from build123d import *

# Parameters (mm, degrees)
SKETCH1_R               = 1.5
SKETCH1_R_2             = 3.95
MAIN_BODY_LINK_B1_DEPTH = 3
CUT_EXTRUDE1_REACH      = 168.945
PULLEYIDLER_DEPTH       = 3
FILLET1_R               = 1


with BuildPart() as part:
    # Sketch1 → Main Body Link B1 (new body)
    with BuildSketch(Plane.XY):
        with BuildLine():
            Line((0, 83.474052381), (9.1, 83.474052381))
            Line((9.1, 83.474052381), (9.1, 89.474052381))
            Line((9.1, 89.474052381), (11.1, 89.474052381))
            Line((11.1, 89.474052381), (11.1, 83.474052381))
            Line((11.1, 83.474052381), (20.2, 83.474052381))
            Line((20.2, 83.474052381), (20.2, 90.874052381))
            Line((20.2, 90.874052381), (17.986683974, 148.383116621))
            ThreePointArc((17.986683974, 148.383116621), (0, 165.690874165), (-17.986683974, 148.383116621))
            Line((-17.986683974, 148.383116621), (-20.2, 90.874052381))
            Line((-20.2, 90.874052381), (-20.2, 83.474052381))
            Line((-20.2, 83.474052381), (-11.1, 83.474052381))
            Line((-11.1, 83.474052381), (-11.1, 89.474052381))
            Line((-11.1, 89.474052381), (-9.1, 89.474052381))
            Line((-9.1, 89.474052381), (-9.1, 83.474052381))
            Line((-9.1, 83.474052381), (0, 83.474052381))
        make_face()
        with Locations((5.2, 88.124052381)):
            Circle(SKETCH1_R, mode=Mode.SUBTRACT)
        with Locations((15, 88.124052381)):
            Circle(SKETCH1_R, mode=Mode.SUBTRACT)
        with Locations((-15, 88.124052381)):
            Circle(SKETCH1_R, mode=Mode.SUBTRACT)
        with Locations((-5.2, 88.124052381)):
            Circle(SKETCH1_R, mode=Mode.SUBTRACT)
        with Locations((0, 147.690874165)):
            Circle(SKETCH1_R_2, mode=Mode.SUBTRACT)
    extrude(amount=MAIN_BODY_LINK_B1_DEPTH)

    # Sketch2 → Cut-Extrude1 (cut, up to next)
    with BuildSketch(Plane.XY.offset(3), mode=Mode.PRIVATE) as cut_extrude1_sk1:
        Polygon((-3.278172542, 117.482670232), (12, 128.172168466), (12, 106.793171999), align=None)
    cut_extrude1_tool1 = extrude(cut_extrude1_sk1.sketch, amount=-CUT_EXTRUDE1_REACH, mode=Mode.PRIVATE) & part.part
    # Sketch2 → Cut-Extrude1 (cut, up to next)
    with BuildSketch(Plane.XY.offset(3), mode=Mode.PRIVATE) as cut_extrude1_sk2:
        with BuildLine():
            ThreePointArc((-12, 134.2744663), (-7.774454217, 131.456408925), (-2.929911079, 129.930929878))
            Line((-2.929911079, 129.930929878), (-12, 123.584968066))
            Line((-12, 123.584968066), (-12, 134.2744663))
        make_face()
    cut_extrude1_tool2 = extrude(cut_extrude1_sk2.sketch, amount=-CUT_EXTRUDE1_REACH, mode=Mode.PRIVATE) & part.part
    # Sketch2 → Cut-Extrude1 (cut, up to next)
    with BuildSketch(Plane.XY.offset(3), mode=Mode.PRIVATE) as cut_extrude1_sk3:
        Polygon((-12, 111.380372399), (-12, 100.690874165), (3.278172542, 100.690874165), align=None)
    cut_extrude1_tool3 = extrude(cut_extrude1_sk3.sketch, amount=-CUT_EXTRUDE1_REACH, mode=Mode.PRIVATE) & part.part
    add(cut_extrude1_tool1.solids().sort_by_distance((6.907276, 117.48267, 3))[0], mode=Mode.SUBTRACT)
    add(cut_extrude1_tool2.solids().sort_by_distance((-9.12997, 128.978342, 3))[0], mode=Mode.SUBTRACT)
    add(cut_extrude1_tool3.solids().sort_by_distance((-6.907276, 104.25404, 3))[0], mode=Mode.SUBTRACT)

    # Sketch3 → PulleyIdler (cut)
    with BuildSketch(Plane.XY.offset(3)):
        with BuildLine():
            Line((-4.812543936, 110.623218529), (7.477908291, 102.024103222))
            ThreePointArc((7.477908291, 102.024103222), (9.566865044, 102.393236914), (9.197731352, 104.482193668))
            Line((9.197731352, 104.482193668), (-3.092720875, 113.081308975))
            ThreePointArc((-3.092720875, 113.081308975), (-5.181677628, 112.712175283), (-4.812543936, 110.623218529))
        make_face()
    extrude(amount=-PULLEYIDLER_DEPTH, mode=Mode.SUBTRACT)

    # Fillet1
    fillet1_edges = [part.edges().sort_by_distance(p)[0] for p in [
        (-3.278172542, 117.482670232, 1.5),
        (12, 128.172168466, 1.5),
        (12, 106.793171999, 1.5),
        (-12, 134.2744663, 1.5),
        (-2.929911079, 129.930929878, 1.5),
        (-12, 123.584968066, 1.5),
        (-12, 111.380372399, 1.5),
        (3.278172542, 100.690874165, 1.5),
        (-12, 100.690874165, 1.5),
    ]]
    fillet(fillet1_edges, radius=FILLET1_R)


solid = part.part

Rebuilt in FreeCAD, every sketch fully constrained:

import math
import FreeCAD as App
import Part
import Sketcher
Q = App.Units.Quantity


def edges_at(feature, points):
    """Names of the edges that pass closest to the given points."""
    edges = feature.Shape.Edges
    near = lambda p: min(range(len(edges)), key=lambda i: edges[i].distToShape(Part.Vertex(*p))[0])
    return sorted({f"Edge{near(p) + 1}" for p in points})


def add_polygon(sketch, points):
    """Adds a closed chain of lines whose ends are joined by coincident constraints."""
    first, n = sketch.GeometryCount, len(points)
    for a, b in zip(points, points[1:] + points[:1]):
        sketch.addGeometry(Part.LineSegment(App.Vector(*a, 0), App.Vector(*b, 0)), False)
    for i in range(n):
        sketch.addConstraint(Sketcher.Constraint("Coincident", first + i, 2, first + (i + 1) % n, 1))

doc = App.newDocument("Part")
params = doc.addObject("Spreadsheet::Sheet", "Params")
for row, (alias, value) in enumerate([
    ("sketch1_diameter", "3 mm"),
    ("sketch1_radius", "18 mm"),
    ("sketch1_diameter2", "7.9 mm"),
    ("sketch1_width", "2 mm"),
    ("sketch1_height", "6 mm"),
    ("pad1_length", "3 mm"),
    ("sketch3_radius", "18 mm"),
    ("sketch5_radius", "1.5 mm"),
    ("sketch5_length", "15 mm"),
    ("pocket4_length", "3 mm"),
    ("fillet_radius", "1 mm"),
], start=1):
    params.set(f"A{row}", alias)
    params.set(f"B{row}", "=" + value)
    params.setAlias(f"B{row}", alias)

body = doc.addObject("PartDesign::Body", "Body")

sketch1 = body.newObject("Sketcher::SketchObject", "Sketch")
sketch1.AttachmentSupport = (doc.getObject("XY_Plane"), [""])
sketch1.MapMode = "FlatFace"
sketch1.addGeometry([
    Part.LineSegment(App.Vector(9.1, 83.5, 0), App.Vector(9.1, 89.5, 0)),
    Part.LineSegment(App.Vector(9.1, 89.5, 0), App.Vector(11.1, 89.5, 0)),
    Part.LineSegment(App.Vector(11.1, 89.5, 0), App.Vector(11.1, 83.5, 0)),
    Part.LineSegment(App.Vector(11.1, 83.5, 0), App.Vector(20.2, 83.5, 0)),
    Part.LineSegment(App.Vector(20.2, 83.5, 0), App.Vector(20.2, 90.9, 0)),
    Part.LineSegment(App.Vector(20.2, 90.9, 0), App.Vector(18, 148.4, 0)),
    Part.ArcOfCircle(Part.Circle(App.Vector(0, 147.7, 0), App.Vector(0, 0, 1), 18), math.radians(2), math.radians(178)),
    Part.LineSegment(App.Vector(-18, 148.4, 0), App.Vector(-20.2, 90.9, 0)),
    Part.LineSegment(App.Vector(-20.2, 90.9, 0), App.Vector(-20.2, 83.5, 0)),
    Part.LineSegment(App.Vector(-20.2, 83.5, 0), App.Vector(-11.1, 83.5, 0)),
    Part.LineSegment(App.Vector(-11.1, 83.5, 0), App.Vector(-11.1, 89.5, 0)),
    Part.LineSegment(App.Vector(-11.1, 89.5, 0), App.Vector(-9.1, 89.5, 0)),
    Part.LineSegment(App.Vector(-9.1, 89.5, 0), App.Vector(-9.1, 83.5, 0)),
    Part.LineSegment(App.Vector(-9.1, 83.5, 0), App.Vector(9.1, 83.5, 0)),
    Part.Circle(App.Vector(-15, 88.1, 0), App.Vector(0, 0, 1), 1.5),
    Part.Circle(App.Vector(-5.2, 88.1, 0), App.Vector(0, 0, 1), 1.5),
    Part.Circle(App.Vector(5.2, 88.1, 0), App.Vector(0, 0, 1), 1.5),
    Part.Circle(App.Vector(15, 88.1, 0), App.Vector(0, 0, 1), 1.5),
    Part.Circle(App.Vector(0, 147.7, 0), App.Vector(0, 0, 1), 4),
], False)
sketch1.addConstraint([
    Sketcher.Constraint("Coincident", 0, 2, 1, 1),
    Sketcher.Constraint("Coincident", 1, 2, 2, 1),
    Sketcher.Constraint("Coincident", 2, 2, 3, 1),
    Sketcher.Constraint("Coincident", 3, 2, 4, 1),
    Sketcher.Constraint("Coincident", 4, 2, 5, 1),
    Sketcher.Constraint("Tangent", 5, 2, 6, 1),
    Sketcher.Constraint("Tangent", 6, 2, 7, 1),
    Sketcher.Constraint("Coincident", 7, 2, 8, 1),
    Sketcher.Constraint("Coincident", 8, 2, 9, 1),
    Sketcher.Constraint("Coincident", 9, 2, 10, 1),
    Sketcher.Constraint("Coincident", 10, 2, 11, 1),
    Sketcher.Constraint("Coincident", 11, 2, 12, 1),
    Sketcher.Constraint("Coincident", 12, 2, 13, 1),
    Sketcher.Constraint("Coincident", 13, 2, 0, 1),
    Sketcher.Constraint("Vertical", 0),
    Sketcher.Constraint("Horizontal", 1),
    Sketcher.Constraint("Vertical", 2),
    Sketcher.Constraint("Horizontal", 3),
    Sketcher.Constraint("Vertical", 4),
    Sketcher.Constraint("Vertical", 8),
    Sketcher.Constraint("Horizontal", 9),
    Sketcher.Constraint("Vertical", 10),
    Sketcher.Constraint("Horizontal", 11),
    Sketcher.Constraint("Vertical", 12),
    Sketcher.Constraint("Horizontal", 13),
    Sketcher.Constraint("Coincident", 18, 3, 6, 3),
    Sketcher.Constraint("Equal", 14, 15),
    Sketcher.Constraint("Equal", 15, 16),
    Sketcher.Constraint("Equal", 16, 17),
    Sketcher.Constraint("Symmetric", 15, 3, 16, 3, -2),
    Sketcher.Constraint("Symmetric", 14, 3, 17, 3, -2),
    Sketcher.Constraint("Symmetric", 5, 2, 6, 2, -2),
    Sketcher.Constraint("Symmetric", 3, 2, 8, 2, -2),
    Sketcher.Constraint("Symmetric", 1, 2, 10, 2, -2),
    Sketcher.Constraint("Horizontal", 14, 3, 15, 3),
    Sketcher.Constraint("Horizontal", 9, 2, 12, 2),
    Sketcher.Constraint("Equal", 1, 11),
    Sketcher.Constraint("Diameter", 14, Q("3 mm")),
    Sketcher.Constraint("Radius", 6, Q("18 mm")),
    Sketcher.Constraint("Diameter", 18, Q("7.9 mm")),
    Sketcher.Constraint("DistanceX", 1, 1, 1, 2, Q("2 mm")),
    Sketcher.Constraint("DistanceY", 0, 1, 0, 2, Q("6 mm")),
    Sketcher.Constraint("DistanceX", 3, 1, 3, 2, Q("9.1 mm")),
    Sketcher.Constraint("DistanceX", 13, 1, 13, 2, Q("18.2 mm")),
    Sketcher.Constraint("DistanceY", 4, 1, 4, 2, Q("7.4 mm")),
    Sketcher.Constraint("DistanceX", 14, 3, -1, 1, Q("15 mm")),
    Sketcher.Constraint("DistanceX", 16, 3, 3, 2, Q("15 mm")),
    Sketcher.Constraint("DistanceY", 16, 3, 0, 2, Q("1.35 mm")),
    Sketcher.Constraint("Distance", 5, Q("57.55164 mm")),
    Sketcher.Constraint("DistanceY", -1, 1, 6, 3, Q("147.690874 mm")),
])
sketch1.setExpression("Constraints[37]", "Params.sketch1_diameter")
sketch1.setExpression("Constraints[38]", "Params.sketch1_radius")
sketch1.setExpression("Constraints[39]", "Params.sketch1_diameter2")
sketch1.setExpression("Constraints[40]", "Params.sketch1_width")
sketch1.setExpression("Constraints[41]", "Params.sketch1_height")
pad1 = body.newObject("PartDesign::Pad", "Pad")
pad1.Profile = sketch1
pad1.setExpression("Length", "Params.pad1_length")

sketch2 = body.newObject("Sketcher::SketchObject", "Sketch001")
sketch2.AttachmentSupport = (doc.getObject("XY_Plane"), [""])
sketch2.MapMode = "FlatFace"
sketch2.AttachmentOffset = App.Placement(App.Vector(0, 0, 3), App.Rotation())
add_polygon(sketch2, [(12, 128), (-3, 117), (12, 107)])
sketch2.addConstraint([
    Sketcher.Constraint("Vertical", 2),
    Sketcher.Constraint("Equal", 0, 1),
    Sketcher.Constraint("DistanceX", -1, 1, 1, 2, Q("12 mm")),
    Sketcher.Constraint("DistanceY", 1, 2, 0, 2, Q("10.689498 mm")),
    Sketcher.Constraint("Distance", 0, Q("18.646392 mm")),
    Sketcher.Constraint("DistanceY", -1, 1, 0, 2, Q("117.48267 mm")),
])
pocket1 = body.newObject("PartDesign::Pocket", "Pocket")
pocket1.Profile = sketch2
pocket1.Type = "UpToFirst"

sketch3 = body.newObject("Sketcher::SketchObject", "Sketch002")
sketch3.AttachmentSupport = (doc.getObject("XY_Plane"), [""])
sketch3.MapMode = "FlatFace"
sketch3.AttachmentOffset = App.Placement(App.Vector(0, 0, 3), App.Rotation())
sketch3.addGeometry([
    Part.ArcOfCircle(Part.Circle(App.Vector(0, 148, 0), App.Vector(0, 0, 1), 18), math.radians(-132), math.radians(-99)),
    Part.LineSegment(App.Vector(-12, 134, 0), App.Vector(-12, 124, 0)),
    Part.LineSegment(App.Vector(-12, 124, 0), App.Vector(-3, 130, 0)),
], False)
sketch3.addConstraint([
    Sketcher.Constraint("Coincident", 0, 1, 1, 1),
    Sketcher.Constraint("Coincident", 1, 2, 2, 1),
    Sketcher.Constraint("Coincident", 2, 2, 0, 2),
    Sketcher.Constraint("Vertical", 1),
    Sketcher.Constraint("PointOnObject", 0, 3, -2),
    Sketcher.Constraint("Radius", 0, Q("18 mm")),
    Sketcher.Constraint("DistanceX", 0, 1, -1, 1, Q("12 mm")),
    Sketcher.Constraint("DistanceY", 1, 2, 1, 1, Q("10.689498 mm")),
    Sketcher.Constraint("DistanceY", -1, 1, 1, 2, Q("123.584968 mm")),
    Sketcher.Constraint("DistanceX", 2, 2, -1, 1, Q("2.929911 mm")),
])
sketch3.setExpression("Constraints[5]", "Params.sketch3_radius")
pocket2 = body.newObject("PartDesign::Pocket", "Pocket001")
pocket2.Profile = sketch3
pocket2.Type = "UpToFirst"

sketch4 = body.newObject("Sketcher::SketchObject", "Sketch003")
sketch4.AttachmentSupport = (doc.getObject("XY_Plane"), [""])
sketch4.MapMode = "FlatFace"
sketch4.AttachmentOffset = App.Placement(App.Vector(0, 0, 3), App.Rotation())
add_polygon(sketch4, [(-12, 111), (-12, 101), (3, 101)])
sketch4.addConstraint([
    Sketcher.Constraint("Vertical", 0),
    Sketcher.Constraint("Horizontal", 1),
    Sketcher.Constraint("DistanceX", 0, 2, -1, 1, Q("12 mm")),
    Sketcher.Constraint("DistanceY", 0, 2, 0, 1, Q("10.689498 mm")),
    Sketcher.Constraint("Distance", 2, Q("18.646392 mm")),
    Sketcher.Constraint("DistanceY", -1, 1, 0, 2, Q("100.690874 mm")),
])
pocket3 = body.newObject("PartDesign::Pocket", "Pocket002")
pocket3.Profile = sketch4
pocket3.Type = "UpToFirst"

sketch5 = body.newObject("Sketcher::SketchObject", "Sketch004")
sketch5.AttachmentSupport = (doc.getObject("XY_Plane"), [""])
sketch5.MapMode = "FlatFace"
sketch5.AttachmentOffset = App.Placement(App.Vector(0, 0, 3), App.Rotation())
sketch5.addGeometry([
    Part.LineSegment(App.Vector(-4.8, 110.6, 0), App.Vector(7.5, 102, 0)),
    Part.ArcOfCircle(Part.Circle(App.Vector(8.3, 103.3, 0), App.Vector(0, 0, 1), 1.5), math.radians(-125), math.radians(55)),
    Part.LineSegment(App.Vector(9.2, 104.5, 0), App.Vector(-3.1, 113.1, 0)),
    Part.ArcOfCircle(Part.Circle(App.Vector(-4, 111.9, 0), App.Vector(0, 0, 1), 1.5), math.radians(55), math.radians(235)),
], False)
sketch5.addConstraint([
    Sketcher.Constraint("Tangent", 0, 2, 1, 1),
    Sketcher.Constraint("Tangent", 1, 2, 2, 1),
    Sketcher.Constraint("Tangent", 2, 2, 3, 1),
    Sketcher.Constraint("Tangent", 3, 2, 0, 1),
    Sketcher.Constraint("Equal", 1, 3),
    Sketcher.Constraint("Radius", 1, Q("1.5 mm")),
    Sketcher.Constraint("Distance", 0, Q("15 mm")),
    Sketcher.Constraint("DistanceX", -1, 1, 1, 3, Q("8.33782 mm")),
    Sketcher.Constraint("DistanceY", -1, 1, 1, 3, Q("103.253148 mm")),
    Sketcher.Constraint("DistanceX", -1, 1, 0, 2, Q("7.477908 mm")),
])
sketch5.setExpression("Constraints[5]", "Params.sketch5_radius")
sketch5.setExpression("Constraints[6]", "Params.sketch5_length")
pocket4 = body.newObject("PartDesign::Pocket", "Pocket003")
pocket4.Profile = sketch5
pocket4.setExpression("Length", "Params.pocket4_length")
doc.recompute()

fillet = body.newObject("PartDesign::Fillet", "Fillet")
fillet.Base = (pocket4, edges_at(pocket4, [
    (-3.278, 117.483, 1.5),
    (12, 128.172, 1.5),
    (12, 106.793, 1.5),
    (-12, 134.274, 1.5),
    (-2.93, 129.931, 1.5),
    (-12, 123.585, 1.5),
    (-12, 111.38, 1.5),
    (3.278, 100.691, 1.5),
    (-12, 100.691, 1.5),
]))
fillet.setExpression("Radius", "Params.fillet_radius")

doc.recompute()
